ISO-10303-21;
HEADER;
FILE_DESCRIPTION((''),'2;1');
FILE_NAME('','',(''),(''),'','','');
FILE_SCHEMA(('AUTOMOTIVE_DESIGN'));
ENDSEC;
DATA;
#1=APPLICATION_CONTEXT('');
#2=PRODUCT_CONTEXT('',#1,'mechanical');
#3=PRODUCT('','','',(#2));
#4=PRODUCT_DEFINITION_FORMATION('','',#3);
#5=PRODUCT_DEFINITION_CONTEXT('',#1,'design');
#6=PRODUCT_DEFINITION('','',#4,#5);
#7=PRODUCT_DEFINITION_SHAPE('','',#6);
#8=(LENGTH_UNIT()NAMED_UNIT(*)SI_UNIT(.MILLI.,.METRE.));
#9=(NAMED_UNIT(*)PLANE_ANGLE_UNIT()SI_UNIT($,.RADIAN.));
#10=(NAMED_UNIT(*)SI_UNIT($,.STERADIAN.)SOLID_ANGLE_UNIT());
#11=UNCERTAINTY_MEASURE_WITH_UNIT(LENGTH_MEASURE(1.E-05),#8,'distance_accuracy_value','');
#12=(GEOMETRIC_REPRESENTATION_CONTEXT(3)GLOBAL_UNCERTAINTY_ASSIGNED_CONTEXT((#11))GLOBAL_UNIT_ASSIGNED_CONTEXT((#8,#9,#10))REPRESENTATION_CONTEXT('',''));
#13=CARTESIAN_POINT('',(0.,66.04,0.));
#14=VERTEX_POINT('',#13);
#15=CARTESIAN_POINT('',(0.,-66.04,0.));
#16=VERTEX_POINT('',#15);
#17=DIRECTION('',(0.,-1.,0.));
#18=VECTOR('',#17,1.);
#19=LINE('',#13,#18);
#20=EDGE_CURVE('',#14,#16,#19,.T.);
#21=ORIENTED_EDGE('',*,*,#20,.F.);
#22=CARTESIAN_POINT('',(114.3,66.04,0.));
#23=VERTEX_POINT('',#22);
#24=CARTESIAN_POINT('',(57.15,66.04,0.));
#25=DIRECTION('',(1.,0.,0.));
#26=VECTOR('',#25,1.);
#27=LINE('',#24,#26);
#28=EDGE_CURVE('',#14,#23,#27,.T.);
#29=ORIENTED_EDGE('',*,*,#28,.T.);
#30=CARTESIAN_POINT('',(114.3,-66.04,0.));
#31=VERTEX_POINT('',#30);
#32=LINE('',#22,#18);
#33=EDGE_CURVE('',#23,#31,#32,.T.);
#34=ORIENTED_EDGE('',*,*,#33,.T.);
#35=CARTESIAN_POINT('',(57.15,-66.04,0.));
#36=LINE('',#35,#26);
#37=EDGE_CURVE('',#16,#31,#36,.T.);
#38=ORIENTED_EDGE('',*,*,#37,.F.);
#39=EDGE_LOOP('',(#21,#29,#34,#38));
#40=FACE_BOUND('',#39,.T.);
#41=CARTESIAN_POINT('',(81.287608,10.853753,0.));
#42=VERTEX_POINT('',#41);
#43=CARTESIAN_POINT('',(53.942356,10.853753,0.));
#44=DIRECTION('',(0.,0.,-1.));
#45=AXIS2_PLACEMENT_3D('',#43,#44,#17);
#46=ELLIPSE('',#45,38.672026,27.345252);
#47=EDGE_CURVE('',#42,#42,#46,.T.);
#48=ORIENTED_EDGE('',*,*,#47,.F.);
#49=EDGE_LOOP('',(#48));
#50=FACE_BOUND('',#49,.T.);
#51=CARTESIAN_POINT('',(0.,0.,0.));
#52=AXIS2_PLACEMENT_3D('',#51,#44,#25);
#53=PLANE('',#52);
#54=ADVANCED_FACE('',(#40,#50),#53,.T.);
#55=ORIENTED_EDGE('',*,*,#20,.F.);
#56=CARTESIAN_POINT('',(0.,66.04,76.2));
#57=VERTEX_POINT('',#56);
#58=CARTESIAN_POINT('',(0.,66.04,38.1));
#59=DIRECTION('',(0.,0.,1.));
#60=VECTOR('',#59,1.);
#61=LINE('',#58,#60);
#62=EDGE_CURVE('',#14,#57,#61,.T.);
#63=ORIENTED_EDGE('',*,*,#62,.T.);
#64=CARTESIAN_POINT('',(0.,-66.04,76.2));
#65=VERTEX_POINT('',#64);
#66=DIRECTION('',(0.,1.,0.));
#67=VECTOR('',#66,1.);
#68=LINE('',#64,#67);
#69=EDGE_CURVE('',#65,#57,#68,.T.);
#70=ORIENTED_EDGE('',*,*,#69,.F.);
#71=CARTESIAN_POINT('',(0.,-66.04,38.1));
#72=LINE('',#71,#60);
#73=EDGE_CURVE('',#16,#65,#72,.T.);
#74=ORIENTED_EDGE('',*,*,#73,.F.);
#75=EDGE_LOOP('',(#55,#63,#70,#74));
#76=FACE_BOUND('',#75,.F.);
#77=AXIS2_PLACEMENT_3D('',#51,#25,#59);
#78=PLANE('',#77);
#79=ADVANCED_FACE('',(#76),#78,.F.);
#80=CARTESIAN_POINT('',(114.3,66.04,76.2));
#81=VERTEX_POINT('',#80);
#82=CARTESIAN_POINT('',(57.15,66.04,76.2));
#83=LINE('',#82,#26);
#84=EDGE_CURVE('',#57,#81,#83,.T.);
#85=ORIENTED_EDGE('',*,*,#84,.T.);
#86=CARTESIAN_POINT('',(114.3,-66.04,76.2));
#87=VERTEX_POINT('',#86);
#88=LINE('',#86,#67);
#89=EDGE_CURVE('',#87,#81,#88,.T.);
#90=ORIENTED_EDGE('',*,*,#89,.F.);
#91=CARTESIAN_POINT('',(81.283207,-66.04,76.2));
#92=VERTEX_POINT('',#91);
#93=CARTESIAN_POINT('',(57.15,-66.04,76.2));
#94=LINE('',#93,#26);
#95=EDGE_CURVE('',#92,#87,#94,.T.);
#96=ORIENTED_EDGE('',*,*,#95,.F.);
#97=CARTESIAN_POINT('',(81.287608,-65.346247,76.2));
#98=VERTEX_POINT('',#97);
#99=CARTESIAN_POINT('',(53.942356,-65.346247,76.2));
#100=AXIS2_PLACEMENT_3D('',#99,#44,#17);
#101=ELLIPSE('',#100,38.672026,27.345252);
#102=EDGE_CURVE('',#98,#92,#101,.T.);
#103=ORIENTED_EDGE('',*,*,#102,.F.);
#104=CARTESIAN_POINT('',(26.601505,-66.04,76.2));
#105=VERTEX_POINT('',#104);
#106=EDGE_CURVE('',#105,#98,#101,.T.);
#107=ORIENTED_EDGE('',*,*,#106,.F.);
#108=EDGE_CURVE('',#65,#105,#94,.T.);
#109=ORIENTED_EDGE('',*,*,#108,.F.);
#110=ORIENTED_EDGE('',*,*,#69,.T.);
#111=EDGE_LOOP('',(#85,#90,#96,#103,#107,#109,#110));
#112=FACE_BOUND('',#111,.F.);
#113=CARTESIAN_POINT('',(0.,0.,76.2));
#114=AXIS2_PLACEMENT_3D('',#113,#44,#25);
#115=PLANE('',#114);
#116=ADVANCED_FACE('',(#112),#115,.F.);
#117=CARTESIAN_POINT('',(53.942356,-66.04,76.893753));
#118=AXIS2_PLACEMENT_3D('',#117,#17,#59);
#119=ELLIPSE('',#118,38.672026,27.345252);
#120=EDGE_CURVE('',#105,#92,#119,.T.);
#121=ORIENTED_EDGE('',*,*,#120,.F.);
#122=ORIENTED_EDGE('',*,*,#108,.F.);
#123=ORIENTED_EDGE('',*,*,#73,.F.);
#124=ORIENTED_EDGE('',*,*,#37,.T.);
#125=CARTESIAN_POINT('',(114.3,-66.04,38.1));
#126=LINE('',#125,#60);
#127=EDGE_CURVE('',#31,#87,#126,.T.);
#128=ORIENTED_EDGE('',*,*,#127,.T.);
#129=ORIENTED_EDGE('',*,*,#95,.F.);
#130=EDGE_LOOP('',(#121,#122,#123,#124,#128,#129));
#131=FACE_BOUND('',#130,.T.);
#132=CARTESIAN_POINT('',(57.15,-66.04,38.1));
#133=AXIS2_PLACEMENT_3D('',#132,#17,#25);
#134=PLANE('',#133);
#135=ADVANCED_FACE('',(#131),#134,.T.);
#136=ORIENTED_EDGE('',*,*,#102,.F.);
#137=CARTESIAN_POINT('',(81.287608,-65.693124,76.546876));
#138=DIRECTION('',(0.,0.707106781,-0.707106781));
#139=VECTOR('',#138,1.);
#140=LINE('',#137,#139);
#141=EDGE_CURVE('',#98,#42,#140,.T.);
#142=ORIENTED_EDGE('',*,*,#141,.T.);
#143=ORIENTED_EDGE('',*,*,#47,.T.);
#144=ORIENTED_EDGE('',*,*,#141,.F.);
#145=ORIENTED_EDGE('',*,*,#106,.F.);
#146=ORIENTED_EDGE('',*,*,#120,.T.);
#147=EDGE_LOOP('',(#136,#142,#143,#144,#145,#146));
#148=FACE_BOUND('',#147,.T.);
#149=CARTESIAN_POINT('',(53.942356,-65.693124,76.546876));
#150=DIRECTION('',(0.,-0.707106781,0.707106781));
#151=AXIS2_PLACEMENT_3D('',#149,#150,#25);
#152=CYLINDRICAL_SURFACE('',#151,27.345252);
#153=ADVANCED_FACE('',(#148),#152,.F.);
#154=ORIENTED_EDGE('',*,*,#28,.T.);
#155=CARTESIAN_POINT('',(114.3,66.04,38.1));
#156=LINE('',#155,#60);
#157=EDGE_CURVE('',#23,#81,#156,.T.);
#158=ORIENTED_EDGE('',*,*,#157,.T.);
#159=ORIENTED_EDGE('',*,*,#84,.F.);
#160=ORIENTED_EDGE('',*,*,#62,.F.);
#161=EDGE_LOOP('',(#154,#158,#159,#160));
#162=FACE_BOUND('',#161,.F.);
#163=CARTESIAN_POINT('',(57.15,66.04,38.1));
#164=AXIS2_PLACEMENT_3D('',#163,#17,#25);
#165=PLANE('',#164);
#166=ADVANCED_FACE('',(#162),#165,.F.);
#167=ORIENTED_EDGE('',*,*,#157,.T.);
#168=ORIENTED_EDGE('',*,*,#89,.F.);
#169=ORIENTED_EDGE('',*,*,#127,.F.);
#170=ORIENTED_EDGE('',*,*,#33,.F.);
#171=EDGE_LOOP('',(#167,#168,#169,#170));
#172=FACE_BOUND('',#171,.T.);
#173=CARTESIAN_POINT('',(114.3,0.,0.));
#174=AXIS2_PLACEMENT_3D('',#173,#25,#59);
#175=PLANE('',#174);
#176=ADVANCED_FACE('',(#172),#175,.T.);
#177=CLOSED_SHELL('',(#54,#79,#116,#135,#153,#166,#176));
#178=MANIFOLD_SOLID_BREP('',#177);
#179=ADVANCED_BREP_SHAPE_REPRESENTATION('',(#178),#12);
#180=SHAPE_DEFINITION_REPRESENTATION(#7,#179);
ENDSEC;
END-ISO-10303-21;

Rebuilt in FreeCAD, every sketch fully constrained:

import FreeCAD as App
import Part
import Sketcher

V = App.Vector
Q = App.Units.Quantity

doc = App.newDocument("Part")
body = doc.addObject("PartDesign::Body", "Body")

# Sketch on XZ plane
sketch1 = body.newObject("Sketcher::SketchObject", "Sketch")
sketch1.AttachmentSupport = (doc.getObject("XZ_Plane"), [""])
sketch1.MapMode = "FlatFace"
sketch1.addGeometry([
    Part.LineSegment(V(0, 76.2, 0), V(0, 0, 0)),
    Part.LineSegment(V(0, 0, 0), V(114.3, 0, 0)),
    Part.LineSegment(V(114.3, 0, 0), V(114.3, 76.2, 0)),
    Part.LineSegment(V(114.3, 76.2, 0), V(0, 76.2, 0)),
], False)
sketch1.addConstraint([
    Sketcher.Constraint("Coincident", 0, 2, 1, 1),
    Sketcher.Constraint("Coincident", 1, 2, 2, 1),
    Sketcher.Constraint("Coincident", 2, 2, 3, 1),
    Sketcher.Constraint("Coincident", 3, 2, 0, 1),
    Sketcher.Constraint("Vertical", 0),
    Sketcher.Constraint("Horizontal", 1),
    Sketcher.Constraint("Vertical", 2),
    Sketcher.Constraint("Horizontal", 3),
    Sketcher.Constraint("Coincident", 0, 2, -1, 1),
    Sketcher.Constraint("DistanceY", 0, 2, 0, 1, Q("3 in")),
    Sketcher.Constraint("DistanceX", 1, 1, 1, 2, Q("4.5 in")),
])
pad1 = body.newObject("PartDesign::Pad", "Pad")
pad1.Profile = sketch1
pad1.Length = Q("5.2 in")
pad1.Midplane = True

# Sketch on an angled plane
sketch2 = body.newObject("Sketcher::SketchObject", "Sketch001")
sketch2.Placement = App.Placement(V(0, -71.12, 71.12), App.Rotation(V(1, 0, 0), V(0, -0.707106781, -0.707106781), V(0, 0.707106781, -0.707106781), "ZXY"))
sketch2.addGeometry(Part.Circle(V(53.942356, -7.674762, 0), V(0, 0, 1), 27.345252), False)
sketch2.addConstraint([
    Sketcher.Constraint("Diameter", 0, 54.690504),
    Sketcher.Constraint("DistanceY", 0, 3, -1, 1, 7.674762),
    Sketcher.Constraint("DistanceX", -1, 1, 0, 3, 53.942356),
])
pocket1 = body.newObject("PartDesign::Pocket", "Pocket")
pocket1.Profile = sketch2
pocket1.Type = "ThroughAll"
pocket1.Reversed = True

doc.recompute()
